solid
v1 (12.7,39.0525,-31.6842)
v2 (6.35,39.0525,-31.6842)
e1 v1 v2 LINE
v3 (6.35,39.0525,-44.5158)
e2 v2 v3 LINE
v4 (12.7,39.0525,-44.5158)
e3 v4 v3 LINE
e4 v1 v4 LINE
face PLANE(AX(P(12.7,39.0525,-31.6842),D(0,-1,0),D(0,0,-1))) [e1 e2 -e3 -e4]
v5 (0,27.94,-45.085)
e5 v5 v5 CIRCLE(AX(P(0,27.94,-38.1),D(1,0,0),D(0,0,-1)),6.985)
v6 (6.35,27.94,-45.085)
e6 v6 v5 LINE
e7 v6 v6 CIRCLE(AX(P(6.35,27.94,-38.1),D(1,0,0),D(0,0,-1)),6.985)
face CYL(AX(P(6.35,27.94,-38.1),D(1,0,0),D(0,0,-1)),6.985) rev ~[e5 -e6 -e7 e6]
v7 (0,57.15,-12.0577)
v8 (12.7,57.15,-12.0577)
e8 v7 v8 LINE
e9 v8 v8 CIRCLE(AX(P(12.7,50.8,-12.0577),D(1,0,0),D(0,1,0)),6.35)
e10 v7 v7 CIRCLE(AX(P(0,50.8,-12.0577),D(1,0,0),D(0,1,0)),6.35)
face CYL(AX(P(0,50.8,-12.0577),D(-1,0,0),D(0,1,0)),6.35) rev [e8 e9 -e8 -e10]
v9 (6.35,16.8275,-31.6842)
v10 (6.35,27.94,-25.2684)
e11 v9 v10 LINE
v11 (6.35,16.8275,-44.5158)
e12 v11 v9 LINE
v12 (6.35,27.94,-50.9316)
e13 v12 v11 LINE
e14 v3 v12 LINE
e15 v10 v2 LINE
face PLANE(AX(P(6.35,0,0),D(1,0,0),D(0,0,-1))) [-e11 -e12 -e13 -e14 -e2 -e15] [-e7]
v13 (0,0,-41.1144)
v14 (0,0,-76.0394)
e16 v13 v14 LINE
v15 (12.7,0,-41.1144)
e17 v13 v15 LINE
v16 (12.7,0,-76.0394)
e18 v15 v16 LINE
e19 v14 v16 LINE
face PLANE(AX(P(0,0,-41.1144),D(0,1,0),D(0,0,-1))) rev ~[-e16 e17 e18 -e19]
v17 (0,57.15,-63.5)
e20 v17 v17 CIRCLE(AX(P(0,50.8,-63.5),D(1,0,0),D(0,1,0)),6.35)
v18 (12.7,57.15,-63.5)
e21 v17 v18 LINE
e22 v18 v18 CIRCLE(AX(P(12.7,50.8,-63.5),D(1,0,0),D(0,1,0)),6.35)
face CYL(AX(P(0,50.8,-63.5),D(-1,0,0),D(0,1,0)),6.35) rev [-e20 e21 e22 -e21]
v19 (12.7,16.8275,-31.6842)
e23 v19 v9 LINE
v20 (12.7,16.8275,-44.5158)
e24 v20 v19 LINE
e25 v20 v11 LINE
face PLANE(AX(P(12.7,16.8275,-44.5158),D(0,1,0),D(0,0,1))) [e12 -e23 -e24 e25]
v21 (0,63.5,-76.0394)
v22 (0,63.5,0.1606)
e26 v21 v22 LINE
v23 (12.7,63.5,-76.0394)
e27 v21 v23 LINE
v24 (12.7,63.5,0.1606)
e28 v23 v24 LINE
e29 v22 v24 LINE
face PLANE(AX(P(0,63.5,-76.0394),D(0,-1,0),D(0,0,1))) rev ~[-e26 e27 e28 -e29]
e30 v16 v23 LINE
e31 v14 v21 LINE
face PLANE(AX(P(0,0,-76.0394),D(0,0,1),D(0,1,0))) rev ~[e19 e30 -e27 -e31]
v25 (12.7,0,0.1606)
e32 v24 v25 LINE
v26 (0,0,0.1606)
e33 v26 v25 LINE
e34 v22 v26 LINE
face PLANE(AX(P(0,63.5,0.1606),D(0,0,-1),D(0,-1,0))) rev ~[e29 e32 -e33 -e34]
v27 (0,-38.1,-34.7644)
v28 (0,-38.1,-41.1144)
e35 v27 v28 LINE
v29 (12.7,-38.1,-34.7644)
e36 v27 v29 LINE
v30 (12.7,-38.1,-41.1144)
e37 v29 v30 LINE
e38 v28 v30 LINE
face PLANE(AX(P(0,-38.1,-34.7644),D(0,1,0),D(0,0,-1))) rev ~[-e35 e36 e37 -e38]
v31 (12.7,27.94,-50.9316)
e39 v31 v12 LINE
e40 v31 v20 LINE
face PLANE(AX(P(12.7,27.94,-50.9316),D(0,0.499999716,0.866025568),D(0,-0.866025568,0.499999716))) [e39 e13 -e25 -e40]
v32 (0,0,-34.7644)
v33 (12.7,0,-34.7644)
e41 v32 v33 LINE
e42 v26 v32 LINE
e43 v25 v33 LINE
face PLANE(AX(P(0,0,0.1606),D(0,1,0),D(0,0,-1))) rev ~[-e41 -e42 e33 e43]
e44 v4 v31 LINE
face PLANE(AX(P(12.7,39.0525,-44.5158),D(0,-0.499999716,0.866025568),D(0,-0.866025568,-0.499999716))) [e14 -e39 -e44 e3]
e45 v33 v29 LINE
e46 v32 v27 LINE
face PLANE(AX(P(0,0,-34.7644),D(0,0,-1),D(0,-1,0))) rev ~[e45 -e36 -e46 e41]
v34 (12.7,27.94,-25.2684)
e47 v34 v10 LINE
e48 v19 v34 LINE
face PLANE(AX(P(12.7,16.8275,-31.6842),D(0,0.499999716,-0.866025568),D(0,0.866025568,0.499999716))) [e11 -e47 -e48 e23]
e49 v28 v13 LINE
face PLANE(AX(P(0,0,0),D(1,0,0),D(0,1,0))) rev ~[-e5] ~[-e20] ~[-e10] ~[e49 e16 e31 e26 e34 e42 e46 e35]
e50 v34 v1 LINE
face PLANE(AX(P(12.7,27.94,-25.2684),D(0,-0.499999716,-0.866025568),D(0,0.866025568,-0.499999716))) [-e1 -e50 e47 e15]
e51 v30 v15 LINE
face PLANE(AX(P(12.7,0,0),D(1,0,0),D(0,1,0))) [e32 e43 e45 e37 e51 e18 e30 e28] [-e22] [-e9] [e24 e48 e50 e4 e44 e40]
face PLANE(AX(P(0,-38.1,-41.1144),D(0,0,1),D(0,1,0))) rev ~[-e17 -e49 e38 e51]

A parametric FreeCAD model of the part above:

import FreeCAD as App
import Part
import Sketcher
Q = App.Units.Quantity


def add_polygon(sketch, points):
    """Adds a closed chain of lines whose ends are joined by coincident constraints."""
    first, n = sketch.GeometryCount, len(points)
    for a, b in zip(points, points[1:] + points[:1]):
        sketch.addGeometry(Part.LineSegment(App.Vector(*a, 0), App.Vector(*b, 0)), False)
    for i in range(n):
        sketch.addConstraint(Sketcher.Constraint("Coincident", first + i, 2, first + (i + 1) % n, 1))

doc = App.newDocument("Part")
body = doc.addObject("PartDesign::Body", "Body")

# Sketch on YZ plane
sketch1 = body.newObject("Sketcher::SketchObject", "Sketch")
sketch1.AttachmentSupport = (doc.getObject("YZ_Plane"), [""])
sketch1.MapMode = "FlatFace"
add_polygon(sketch1, [(0, 0), (0, -35), (-38, -35), (-38, -41), (0, -41), (0, -76), (64, -76), (64, 0)])  # lines 0-7
sketch1.addGeometry(Part.Circle(App.Vector(51, -64, 0), App.Vector(0, 0, 1), 6), False)  # 8
sketch1.addGeometry(Part.Circle(App.Vector(51, -12, 0), App.Vector(0, 0, 1), 6), False)  # 9
sketch1.addConstraint(Sketcher.Constraint("Vertical", 0))
sketch1.addConstraint(Sketcher.Constraint("Horizontal", 1))
sketch1.addConstraint(Sketcher.Constraint("Vertical", 2))
sketch1.addConstraint(Sketcher.Constraint("Horizontal", 3))
sketch1.addConstraint(Sketcher.Constraint("Vertical", 4))
sketch1.addConstraint(Sketcher.Constraint("Horizontal", 5))
sketch1.addConstraint(Sketcher.Constraint("Vertical", 6))
sketch1.addConstraint(Sketcher.Constraint("Horizontal", 7))
sketch1.addConstraint(Sketcher.Constraint("Equal", 8, 9))
sketch1.addConstraint(Sketcher.Constraint("PointOnObject", 0, 2, -2))
sketch1.addConstraint(Sketcher.Constraint("PointOnObject", 3, 2, -2))
sketch1.addConstraint(Sketcher.Constraint("Vertical", 8, 3, 9, 3))
sketch1.addConstraint(Sketcher.Constraint("Equal", 0, 4))
sketch1.addConstraint(Sketcher.Constraint("Diameter", 8, Q("0.5 in")))
sketch1.addConstraint(Sketcher.Constraint("DistanceY", 6, 1, 6, 2, Q("3 in")))
sketch1.addConstraint(Sketcher.Constraint("DistanceX", 1, 2, 1, 1, Q("1.5 in")))
sketch1.addConstraint(Sketcher.Constraint("DistanceX", 5, 1, 5, 2, Q("2.5 in")))
sketch1.addConstraint(Sketcher.Constraint("DistanceY", 2, 2, 2, 1, Q("0.25 in")))
sketch1.addConstraint(Sketcher.Constraint("DistanceY", 8, 3, -1, 1, Q("2.5 in")))
sketch1.addConstraint(Sketcher.Constraint("DistanceX", 8, 3, 5, 2, Q("0.5 in")))
sketch1.addConstraint(Sketcher.Constraint("DistanceY", 9, 3, -1, 1, Q("12.0577 mm")))
sketch1.addConstraint(Sketcher.Constraint("DistanceY", 0, 2, -1, 1, Q("34.7644 mm")))
pad1 = body.newObject("PartDesign::Pad", "Pad")
pad1.Profile = sketch1
pad1.Length = Q("0.5 in")

# Sketch on YZ plane
sketch2 = body.newObject("Sketcher::SketchObject", "Sketch001")
sketch2.AttachmentSupport = (doc.getObject("YZ_Plane"), [""])
sketch2.MapMode = "FlatFace"
sketch2.AttachmentOffset = App.Placement(App.Vector(0, 0, 0.5 * 25.4), App.Rotation())
add_polygon(sketch2, [(28, -25), (17, -32), (17, -45), (28, -51), (39, -45), (39, -32)])  # lines 0-5
sketch2.addConstraint(Sketcher.Constraint("Vertical", 1))
sketch2.addConstraint(Sketcher.Constraint("Vertical", 4))
sketch2.addConstraint(Sketcher.Constraint("Parallel", 0, 3))
sketch2.addConstraint(Sketcher.Constraint("Parallel", 2, 5))
sketch2.addConstraint(Sketcher.Constraint("Horizontal", 1, 2, 3, 2))
sketch2.addConstraint(Sketcher.Constraint("Horizontal", 0, 2, 4, 2))
sketch2.addConstraint(Sketcher.Constraint("Vertical", 2, 2, 5, 2))
sketch2.addConstraint(Sketcher.Constraint("DistanceX", -1, 1, 2, 2, Q("1.1 in")))
sketch2.addConstraint(Sketcher.Constraint("Angle", 0, Q("-150 deg")))
sketch2.addConstraint(Sketcher.Constraint("DistanceX", 1, 2, 3, 2, Q("0.875 in")))
sketch2.addConstraint(Sketcher.Constraint("DistanceY", 1, 2, 1, 1, Q("12.8316 mm")))
sketch2.addConstraint(Sketcher.Constraint("DistanceY", 0, 2, -1, 1, Q("1.2474 in")))
pocket1 = body.newObject("PartDesign::Pocket", "Pocket")
pocket1.Profile = sketch2
pocket1.Length = Q("0.25 in")

# Sketch on YZ plane
sketch3 = body.newObject("Sketcher::SketchObject", "Sketch002")
sketch3.AttachmentSupport = (doc.getObject("YZ_Plane"), [""])
sketch3.MapMode = "FlatFace"
sketch3.AttachmentOffset = App.Placement(App.Vector(0, 0, 0.25 * 25.4), App.Rotation())
sketch3.addGeometry(Part.Circle(App.Vector(28, -38, 0), App.Vector(0, 0, 1), 7), False)
sketch3.addConstraint(Sketcher.Constraint("Diameter", 0, Q("0.55 in")))
sketch3.addConstraint(Sketcher.Constraint("DistanceX", -1, 1, 0, 3, Q("1.1 in")))
sketch3.addConstraint(Sketcher.Constraint("DistanceY", 0, 3, -1, 1, Q("1.5 in")))
pocket2 = body.newObject("PartDesign::Pocket", "Pocket001")
pocket2.Profile = sketch3
pocket2.Type = "ThroughAll"
pocket2.Midplane = True

doc.recompute()
